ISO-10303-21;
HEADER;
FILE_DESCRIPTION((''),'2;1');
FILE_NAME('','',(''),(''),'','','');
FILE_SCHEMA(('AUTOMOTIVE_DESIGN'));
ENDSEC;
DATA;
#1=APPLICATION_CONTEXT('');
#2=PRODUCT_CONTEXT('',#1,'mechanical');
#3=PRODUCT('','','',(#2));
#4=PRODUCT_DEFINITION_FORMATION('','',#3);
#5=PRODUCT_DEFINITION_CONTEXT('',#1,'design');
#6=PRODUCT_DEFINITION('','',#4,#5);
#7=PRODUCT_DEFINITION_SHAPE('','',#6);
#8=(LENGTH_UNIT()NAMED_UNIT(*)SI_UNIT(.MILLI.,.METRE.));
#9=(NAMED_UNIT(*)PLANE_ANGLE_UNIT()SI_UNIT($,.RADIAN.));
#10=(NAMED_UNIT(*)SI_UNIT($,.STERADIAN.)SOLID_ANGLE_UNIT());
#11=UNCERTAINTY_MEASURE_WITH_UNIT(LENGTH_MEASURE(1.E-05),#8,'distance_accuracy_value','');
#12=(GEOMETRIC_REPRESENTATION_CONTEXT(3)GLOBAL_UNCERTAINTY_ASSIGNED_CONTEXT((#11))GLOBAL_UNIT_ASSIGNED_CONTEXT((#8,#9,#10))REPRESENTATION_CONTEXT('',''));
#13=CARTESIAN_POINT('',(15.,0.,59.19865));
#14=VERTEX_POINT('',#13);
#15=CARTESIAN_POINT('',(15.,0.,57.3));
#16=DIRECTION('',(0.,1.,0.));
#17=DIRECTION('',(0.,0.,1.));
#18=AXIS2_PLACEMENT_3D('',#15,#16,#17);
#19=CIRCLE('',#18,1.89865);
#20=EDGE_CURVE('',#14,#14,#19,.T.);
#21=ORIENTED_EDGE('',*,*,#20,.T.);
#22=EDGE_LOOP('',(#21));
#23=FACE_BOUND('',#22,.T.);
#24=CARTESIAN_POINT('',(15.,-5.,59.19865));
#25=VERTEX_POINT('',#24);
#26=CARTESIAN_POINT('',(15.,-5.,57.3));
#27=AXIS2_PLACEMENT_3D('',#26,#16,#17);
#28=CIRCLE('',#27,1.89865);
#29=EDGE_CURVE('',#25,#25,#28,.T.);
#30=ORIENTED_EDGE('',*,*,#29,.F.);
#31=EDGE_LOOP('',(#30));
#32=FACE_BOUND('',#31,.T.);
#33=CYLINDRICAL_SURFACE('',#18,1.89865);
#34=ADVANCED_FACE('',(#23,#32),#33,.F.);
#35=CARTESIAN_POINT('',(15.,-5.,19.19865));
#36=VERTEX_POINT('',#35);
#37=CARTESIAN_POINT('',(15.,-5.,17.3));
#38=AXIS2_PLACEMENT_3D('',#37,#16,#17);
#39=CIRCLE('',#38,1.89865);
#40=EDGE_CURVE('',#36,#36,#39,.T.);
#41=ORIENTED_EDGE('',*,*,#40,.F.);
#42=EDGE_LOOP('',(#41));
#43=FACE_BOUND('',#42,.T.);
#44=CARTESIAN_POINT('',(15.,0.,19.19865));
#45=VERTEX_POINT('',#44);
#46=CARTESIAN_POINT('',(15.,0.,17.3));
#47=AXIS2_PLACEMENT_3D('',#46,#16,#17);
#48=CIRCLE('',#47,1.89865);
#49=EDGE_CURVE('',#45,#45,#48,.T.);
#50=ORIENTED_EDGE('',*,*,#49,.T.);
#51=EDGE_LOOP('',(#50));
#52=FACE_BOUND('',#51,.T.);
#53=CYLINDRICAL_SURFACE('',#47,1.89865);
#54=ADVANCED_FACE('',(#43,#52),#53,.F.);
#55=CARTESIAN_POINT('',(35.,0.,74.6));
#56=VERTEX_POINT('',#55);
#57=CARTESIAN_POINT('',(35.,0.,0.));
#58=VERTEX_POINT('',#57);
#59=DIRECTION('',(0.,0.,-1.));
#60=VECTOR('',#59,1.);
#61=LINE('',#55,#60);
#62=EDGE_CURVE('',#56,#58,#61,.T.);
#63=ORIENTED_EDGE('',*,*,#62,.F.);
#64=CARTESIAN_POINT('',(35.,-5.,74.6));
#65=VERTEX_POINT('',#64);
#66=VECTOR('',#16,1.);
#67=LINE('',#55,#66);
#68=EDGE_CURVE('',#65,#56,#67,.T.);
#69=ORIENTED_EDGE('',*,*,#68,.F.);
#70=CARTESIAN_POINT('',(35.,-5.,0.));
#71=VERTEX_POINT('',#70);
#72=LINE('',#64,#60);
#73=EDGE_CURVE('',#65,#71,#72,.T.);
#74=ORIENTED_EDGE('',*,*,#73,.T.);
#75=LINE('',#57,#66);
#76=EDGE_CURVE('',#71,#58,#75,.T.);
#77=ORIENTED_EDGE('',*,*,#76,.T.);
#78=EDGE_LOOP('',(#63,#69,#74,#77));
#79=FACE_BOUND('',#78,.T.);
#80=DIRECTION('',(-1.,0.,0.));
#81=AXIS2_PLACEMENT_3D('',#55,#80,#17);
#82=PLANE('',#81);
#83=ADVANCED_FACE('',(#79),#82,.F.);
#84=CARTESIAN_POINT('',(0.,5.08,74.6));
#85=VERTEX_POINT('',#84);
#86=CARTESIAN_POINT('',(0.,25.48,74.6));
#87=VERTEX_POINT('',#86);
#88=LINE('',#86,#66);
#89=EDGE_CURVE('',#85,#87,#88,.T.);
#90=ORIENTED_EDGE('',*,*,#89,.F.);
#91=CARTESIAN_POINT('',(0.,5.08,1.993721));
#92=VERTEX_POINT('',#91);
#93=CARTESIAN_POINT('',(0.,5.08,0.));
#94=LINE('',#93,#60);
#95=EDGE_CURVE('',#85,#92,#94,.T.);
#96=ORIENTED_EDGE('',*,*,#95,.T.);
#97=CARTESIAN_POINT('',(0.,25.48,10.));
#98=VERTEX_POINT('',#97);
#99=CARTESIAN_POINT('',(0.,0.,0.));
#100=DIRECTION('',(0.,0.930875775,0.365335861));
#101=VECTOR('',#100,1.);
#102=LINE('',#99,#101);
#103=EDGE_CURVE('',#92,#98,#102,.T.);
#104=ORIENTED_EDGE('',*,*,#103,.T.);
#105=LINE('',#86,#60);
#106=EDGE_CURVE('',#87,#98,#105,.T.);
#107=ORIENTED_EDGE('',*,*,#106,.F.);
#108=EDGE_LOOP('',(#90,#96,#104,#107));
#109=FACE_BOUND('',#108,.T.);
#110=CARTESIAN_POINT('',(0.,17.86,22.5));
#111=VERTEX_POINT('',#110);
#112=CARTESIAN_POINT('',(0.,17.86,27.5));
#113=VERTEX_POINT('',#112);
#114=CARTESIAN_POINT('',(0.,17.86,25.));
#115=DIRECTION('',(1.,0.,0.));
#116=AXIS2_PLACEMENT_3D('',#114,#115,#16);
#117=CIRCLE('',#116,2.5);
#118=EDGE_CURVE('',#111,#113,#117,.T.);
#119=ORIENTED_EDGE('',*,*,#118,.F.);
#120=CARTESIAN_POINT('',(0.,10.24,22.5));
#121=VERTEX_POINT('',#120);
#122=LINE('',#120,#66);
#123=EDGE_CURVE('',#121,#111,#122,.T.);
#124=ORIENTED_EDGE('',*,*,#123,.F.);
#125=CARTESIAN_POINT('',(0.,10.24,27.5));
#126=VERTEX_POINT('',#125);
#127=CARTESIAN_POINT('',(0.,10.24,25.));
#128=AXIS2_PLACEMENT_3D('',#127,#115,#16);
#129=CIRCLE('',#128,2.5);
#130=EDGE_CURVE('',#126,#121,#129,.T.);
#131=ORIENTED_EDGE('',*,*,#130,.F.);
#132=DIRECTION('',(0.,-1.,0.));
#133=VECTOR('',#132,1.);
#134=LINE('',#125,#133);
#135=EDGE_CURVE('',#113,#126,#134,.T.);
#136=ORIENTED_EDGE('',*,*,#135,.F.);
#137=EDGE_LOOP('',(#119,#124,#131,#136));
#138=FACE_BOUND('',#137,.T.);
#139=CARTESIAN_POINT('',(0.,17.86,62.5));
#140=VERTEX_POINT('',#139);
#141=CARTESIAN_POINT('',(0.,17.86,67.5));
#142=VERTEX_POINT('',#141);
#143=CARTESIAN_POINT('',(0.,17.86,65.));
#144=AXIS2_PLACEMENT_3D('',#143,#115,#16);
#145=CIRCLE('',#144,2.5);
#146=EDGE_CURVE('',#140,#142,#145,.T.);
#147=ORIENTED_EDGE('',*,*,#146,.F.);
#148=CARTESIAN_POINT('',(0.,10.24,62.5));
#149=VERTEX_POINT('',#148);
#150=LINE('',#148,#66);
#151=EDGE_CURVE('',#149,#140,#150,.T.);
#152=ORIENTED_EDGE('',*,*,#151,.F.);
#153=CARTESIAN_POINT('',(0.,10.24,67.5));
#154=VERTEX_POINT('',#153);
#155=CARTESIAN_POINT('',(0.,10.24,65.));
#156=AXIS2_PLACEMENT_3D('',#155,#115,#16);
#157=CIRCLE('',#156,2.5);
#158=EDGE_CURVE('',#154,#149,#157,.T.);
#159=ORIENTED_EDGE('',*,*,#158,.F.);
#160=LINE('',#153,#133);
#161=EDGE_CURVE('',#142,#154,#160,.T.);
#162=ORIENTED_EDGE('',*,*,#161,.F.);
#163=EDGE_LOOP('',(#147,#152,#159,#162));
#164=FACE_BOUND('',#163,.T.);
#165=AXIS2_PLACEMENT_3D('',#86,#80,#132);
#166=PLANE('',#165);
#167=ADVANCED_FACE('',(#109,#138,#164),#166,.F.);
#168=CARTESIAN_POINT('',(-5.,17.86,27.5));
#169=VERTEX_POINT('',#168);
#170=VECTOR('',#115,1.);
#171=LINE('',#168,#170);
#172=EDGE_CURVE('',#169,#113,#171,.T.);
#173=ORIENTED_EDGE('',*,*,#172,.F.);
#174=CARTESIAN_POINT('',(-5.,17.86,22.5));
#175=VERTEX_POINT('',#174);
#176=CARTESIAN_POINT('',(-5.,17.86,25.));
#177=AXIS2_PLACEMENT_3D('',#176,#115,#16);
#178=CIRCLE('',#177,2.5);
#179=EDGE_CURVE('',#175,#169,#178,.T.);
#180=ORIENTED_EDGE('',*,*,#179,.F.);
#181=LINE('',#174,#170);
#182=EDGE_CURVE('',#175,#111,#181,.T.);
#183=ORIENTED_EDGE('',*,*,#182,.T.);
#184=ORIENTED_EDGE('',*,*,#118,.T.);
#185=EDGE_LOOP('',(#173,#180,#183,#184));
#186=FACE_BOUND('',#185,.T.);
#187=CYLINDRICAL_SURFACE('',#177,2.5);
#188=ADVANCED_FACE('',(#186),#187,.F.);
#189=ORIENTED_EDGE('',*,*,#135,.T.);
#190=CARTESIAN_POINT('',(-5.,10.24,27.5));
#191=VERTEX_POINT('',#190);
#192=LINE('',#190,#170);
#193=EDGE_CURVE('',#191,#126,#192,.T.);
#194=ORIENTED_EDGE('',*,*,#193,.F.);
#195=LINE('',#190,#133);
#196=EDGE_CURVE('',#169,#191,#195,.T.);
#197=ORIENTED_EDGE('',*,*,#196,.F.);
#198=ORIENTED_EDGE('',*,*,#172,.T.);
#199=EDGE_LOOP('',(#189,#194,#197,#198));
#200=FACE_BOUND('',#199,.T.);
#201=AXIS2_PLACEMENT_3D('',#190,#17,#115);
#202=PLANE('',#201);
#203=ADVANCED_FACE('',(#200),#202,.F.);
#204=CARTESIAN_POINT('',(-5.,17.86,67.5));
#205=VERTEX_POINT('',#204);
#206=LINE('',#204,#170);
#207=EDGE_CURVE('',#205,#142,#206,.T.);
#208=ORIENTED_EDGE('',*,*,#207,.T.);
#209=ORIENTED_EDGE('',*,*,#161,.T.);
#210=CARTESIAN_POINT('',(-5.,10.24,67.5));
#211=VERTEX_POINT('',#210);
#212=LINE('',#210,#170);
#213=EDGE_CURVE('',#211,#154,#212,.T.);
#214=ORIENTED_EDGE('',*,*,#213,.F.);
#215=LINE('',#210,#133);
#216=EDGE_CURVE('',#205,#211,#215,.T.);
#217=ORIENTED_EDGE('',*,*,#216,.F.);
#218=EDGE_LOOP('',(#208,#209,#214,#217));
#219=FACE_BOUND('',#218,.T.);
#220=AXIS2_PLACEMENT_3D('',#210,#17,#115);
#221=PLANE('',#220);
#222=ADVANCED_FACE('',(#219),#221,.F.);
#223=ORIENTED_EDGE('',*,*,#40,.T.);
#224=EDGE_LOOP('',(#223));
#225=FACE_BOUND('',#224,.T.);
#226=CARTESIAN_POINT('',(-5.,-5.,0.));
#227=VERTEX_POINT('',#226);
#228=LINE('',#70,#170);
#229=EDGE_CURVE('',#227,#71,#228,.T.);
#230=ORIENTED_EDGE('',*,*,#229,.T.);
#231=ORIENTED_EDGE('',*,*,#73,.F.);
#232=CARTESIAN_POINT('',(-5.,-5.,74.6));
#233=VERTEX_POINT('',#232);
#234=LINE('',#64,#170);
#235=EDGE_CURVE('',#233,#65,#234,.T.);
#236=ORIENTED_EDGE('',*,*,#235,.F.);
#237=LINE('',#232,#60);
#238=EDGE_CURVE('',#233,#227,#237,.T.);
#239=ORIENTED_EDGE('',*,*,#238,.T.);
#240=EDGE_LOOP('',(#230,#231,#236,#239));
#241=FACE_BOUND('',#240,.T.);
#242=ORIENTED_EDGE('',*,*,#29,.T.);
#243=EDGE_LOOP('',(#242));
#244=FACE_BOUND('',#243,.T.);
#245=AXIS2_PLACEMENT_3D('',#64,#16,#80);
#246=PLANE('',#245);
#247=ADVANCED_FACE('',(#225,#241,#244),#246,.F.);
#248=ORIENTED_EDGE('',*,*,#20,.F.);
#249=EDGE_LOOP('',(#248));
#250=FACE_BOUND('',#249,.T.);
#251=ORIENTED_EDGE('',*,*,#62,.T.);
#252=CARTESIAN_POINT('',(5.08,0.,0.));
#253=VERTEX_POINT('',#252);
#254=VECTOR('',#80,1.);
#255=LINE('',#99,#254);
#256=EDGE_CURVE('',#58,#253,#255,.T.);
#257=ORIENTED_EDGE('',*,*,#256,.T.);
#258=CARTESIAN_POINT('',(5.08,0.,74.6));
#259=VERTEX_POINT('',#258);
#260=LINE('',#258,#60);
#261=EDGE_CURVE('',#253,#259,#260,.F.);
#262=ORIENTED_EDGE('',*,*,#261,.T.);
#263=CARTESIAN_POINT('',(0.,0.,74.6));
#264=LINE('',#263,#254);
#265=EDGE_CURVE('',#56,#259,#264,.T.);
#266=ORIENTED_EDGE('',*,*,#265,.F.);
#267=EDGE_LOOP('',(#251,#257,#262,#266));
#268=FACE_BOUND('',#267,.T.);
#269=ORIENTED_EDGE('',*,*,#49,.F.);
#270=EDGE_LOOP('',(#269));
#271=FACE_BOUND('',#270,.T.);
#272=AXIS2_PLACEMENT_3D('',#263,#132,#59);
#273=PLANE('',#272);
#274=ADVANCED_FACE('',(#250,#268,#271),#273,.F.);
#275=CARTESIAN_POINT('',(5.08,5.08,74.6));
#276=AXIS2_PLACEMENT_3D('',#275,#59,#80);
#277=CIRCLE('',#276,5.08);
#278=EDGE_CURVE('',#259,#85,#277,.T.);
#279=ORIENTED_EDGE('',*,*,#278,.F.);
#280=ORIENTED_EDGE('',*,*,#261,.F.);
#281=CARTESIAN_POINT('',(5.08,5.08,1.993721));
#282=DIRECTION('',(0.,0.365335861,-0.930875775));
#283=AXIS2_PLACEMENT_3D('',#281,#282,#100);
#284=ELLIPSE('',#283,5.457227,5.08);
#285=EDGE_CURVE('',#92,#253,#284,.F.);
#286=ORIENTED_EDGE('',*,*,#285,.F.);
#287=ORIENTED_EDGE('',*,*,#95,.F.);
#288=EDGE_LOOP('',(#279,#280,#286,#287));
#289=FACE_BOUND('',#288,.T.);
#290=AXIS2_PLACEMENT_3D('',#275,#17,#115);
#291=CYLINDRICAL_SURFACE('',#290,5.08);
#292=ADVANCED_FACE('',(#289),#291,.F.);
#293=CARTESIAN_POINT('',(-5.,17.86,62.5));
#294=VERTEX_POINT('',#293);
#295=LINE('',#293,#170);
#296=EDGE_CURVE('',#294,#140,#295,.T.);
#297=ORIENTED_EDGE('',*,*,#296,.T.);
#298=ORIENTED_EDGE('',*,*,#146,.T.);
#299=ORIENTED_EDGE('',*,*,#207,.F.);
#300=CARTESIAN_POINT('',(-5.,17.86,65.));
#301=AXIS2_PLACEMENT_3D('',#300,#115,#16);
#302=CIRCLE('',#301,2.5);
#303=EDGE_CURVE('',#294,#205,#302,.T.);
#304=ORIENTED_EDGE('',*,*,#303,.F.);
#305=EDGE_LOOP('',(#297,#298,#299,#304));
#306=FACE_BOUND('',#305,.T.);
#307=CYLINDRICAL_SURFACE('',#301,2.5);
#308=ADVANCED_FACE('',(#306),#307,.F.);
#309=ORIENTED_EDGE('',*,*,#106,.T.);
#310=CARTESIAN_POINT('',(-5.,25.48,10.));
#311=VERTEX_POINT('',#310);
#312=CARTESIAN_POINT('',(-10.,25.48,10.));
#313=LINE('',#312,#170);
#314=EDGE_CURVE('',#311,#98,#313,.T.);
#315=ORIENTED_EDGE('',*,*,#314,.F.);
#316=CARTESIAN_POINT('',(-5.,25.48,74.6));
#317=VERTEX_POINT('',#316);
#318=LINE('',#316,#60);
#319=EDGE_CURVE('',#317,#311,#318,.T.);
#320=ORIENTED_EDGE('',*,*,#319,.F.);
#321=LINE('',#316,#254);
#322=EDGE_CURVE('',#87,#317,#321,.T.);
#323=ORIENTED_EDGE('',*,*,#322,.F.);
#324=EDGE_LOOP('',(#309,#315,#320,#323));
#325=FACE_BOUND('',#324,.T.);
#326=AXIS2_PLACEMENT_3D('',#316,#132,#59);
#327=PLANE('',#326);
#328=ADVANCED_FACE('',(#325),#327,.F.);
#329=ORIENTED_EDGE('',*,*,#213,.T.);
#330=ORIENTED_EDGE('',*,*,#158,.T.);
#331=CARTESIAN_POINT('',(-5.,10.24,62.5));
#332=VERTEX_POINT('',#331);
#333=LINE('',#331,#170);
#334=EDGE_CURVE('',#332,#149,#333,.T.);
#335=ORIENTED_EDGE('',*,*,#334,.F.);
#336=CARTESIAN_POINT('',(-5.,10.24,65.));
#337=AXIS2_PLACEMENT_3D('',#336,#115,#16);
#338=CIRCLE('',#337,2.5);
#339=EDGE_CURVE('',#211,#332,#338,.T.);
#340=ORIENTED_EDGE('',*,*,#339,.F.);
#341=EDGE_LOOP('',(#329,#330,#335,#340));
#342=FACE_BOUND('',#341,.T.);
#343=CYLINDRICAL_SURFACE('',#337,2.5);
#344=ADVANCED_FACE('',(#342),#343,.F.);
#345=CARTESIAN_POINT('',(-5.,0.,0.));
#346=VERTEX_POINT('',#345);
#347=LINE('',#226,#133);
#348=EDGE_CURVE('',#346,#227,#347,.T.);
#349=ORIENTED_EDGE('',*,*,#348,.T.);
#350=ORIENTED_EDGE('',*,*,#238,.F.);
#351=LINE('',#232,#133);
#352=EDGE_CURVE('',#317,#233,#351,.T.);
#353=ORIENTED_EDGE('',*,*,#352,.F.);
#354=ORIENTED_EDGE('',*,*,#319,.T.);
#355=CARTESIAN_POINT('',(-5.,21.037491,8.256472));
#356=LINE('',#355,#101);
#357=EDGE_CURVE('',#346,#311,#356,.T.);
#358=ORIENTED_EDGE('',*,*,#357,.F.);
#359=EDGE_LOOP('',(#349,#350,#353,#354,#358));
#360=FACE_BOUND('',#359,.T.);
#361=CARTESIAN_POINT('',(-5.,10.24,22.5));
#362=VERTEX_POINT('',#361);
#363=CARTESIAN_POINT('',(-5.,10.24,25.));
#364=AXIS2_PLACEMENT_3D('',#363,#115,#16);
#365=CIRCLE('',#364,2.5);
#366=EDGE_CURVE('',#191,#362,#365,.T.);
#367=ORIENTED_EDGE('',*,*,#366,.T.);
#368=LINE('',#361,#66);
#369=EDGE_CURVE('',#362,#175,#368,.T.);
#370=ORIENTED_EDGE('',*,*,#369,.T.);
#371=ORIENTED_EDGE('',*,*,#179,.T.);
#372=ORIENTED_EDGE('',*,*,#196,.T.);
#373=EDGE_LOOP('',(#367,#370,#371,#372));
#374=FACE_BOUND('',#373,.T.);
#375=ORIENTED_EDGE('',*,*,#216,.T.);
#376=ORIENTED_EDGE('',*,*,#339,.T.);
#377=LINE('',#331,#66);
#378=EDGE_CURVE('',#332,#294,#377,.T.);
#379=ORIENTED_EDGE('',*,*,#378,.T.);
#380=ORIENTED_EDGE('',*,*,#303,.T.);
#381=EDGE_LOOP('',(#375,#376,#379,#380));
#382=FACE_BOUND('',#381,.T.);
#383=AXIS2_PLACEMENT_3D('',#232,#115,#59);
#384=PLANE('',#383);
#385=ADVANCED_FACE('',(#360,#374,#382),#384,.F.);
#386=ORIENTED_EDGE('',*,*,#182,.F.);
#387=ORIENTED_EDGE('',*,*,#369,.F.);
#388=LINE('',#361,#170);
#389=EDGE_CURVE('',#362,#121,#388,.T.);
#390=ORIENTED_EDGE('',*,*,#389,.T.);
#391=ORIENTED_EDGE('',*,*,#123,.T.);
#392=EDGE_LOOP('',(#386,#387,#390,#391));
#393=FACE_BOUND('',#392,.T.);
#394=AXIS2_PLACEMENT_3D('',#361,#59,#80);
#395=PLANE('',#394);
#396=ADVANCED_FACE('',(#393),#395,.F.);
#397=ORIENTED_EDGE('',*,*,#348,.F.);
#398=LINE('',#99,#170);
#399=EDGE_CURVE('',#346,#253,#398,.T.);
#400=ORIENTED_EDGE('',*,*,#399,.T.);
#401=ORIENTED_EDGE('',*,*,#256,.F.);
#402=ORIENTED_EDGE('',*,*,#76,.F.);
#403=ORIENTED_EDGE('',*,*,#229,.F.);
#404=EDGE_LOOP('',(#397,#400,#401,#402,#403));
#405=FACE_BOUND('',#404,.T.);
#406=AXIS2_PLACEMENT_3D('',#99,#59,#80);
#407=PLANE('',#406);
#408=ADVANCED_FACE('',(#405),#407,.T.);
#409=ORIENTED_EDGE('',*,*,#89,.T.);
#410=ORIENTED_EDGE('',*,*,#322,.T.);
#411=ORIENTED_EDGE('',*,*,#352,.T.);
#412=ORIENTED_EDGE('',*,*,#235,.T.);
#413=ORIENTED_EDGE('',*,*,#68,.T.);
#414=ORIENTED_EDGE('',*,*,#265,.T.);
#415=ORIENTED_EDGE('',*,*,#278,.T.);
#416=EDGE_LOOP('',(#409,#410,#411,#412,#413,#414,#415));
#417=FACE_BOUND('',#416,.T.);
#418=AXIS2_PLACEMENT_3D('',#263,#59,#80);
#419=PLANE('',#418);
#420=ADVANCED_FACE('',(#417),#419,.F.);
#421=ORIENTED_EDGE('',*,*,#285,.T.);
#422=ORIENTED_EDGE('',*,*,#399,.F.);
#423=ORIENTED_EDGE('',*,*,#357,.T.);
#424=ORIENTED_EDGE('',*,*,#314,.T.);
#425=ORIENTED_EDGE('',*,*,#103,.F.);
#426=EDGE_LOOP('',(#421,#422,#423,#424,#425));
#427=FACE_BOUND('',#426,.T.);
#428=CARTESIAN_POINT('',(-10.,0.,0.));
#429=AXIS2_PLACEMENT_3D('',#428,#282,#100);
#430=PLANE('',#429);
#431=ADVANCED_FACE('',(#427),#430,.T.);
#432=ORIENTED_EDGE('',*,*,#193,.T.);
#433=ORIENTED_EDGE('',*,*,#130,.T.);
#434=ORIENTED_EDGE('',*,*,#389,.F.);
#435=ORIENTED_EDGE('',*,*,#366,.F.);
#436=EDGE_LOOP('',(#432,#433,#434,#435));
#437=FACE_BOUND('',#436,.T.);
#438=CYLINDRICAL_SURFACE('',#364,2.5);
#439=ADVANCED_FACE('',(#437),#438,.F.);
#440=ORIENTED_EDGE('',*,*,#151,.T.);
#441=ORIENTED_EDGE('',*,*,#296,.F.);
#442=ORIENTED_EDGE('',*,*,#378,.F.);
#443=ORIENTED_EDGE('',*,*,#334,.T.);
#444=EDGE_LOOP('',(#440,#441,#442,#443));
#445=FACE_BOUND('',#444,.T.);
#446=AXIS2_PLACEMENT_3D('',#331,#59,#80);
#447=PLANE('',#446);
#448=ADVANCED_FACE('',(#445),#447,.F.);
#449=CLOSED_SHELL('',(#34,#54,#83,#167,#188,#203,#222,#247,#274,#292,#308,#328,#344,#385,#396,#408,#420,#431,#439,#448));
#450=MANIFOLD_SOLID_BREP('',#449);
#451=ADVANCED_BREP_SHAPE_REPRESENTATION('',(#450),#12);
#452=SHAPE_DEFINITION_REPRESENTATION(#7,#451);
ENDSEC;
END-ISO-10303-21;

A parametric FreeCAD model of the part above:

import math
import FreeCAD as App
import Part
import Sketcher

V = App.Vector


def edges_at(feature, points):
    """Names of the edges that pass closest to the given points."""
    edges = feature.Shape.Edges
    near = lambda p: min(range(len(edges)), key=lambda i: edges[i].distToShape(Part.Vertex(*p))[0])
    return sorted({f"Edge{near(p) + 1}" for p in points})


def add_polygon(sketch, points):
    """Adds a closed chain of lines whose ends are joined by coincident constraints."""
    first, n = sketch.GeometryCount, len(points)
    for a, b in zip(points, points[1:] + points[:1]):
        sketch.addGeometry(Part.LineSegment(App.Vector(*a, 0), App.Vector(*b, 0)), False)
    for i in range(n):
        sketch.addConstraint(Sketcher.Constraint("Coincident", first + i, 2, first + (i + 1) % n, 1))

doc = App.newDocument("Part")
body = doc.addObject("PartDesign::Body", "Body")

sketch1 = body.newObject("Sketcher::SketchObject", "Sketch")
sketch1.AttachmentSupport = (doc.getObject("XY_Plane"), [""])
sketch1.MapMode = "FlatFace"
add_polygon(sketch1, [(0, 0), (0, 25), (-5, 25), (-5, -5), (35, -5), (35, 0)])
sketch1.addConstraint([
    Sketcher.Constraint("Vertical", 0),
    Sketcher.Constraint("Horizontal", 1),
    Sketcher.Constraint("Vertical", 2),
    Sketcher.Constraint("Horizontal", 3),
    Sketcher.Constraint("Vertical", 4),
    Sketcher.Constraint("Horizontal", 5),
    Sketcher.Constraint("Coincident", 5, 2, -1, 1),
    Sketcher.Constraint("Equal", 1, 4),
    Sketcher.Constraint("DistanceX", 1, 2, 1, 1, 5.0),
    Sketcher.Constraint("DistanceX", 3, 1, 3, 2, 40.0),
    Sketcher.Constraint("DistanceY", 0, 1, 0, 2, 25.48),
])
pad1 = body.newObject("PartDesign::Pad", "Pad")
pad1.Profile = sketch1
pad1.Length = 74.6

sketch2 = body.newObject("Sketcher::SketchObject", "Sketch001")
sketch2.AttachmentSupport = (doc.getObject("YZ_Plane"), [""])
sketch2.MapMode = "FlatFace"
sketch2.addGeometry([
    Part.LineSegment(V(17.9, 67.5, 0), V(10.2, 67.5, 0)),
    Part.ArcOfCircle(Part.Circle(V(10.2, 65, 0), V(0, 0, 1), 2.5), math.radians(90), math.radians(270)),
    Part.LineSegment(V(10.2, 62.5, 0), V(17.9, 62.5, 0)),
    Part.ArcOfCircle(Part.Circle(V(17.9, 65, 0), V(0, 0, 1), 2.5), math.radians(-90), math.radians(90)),
    Part.LineSegment(V(17.9, 27.5, 0), V(10.2, 27.5, 0)),
    Part.ArcOfCircle(Part.Circle(V(10.2, 25, 0), V(0, 0, 1), 2.5), math.radians(90), math.radians(270)),
    Part.LineSegment(V(10.2, 22.5, 0), V(17.9, 22.5, 0)),
    Part.ArcOfCircle(Part.Circle(V(17.9, 25, 0), V(0, 0, 1), 2.5), math.radians(-90), math.radians(90)),
], False)
sketch2.addConstraint([
    Sketcher.Constraint("Tangent", 0, 2, 1, 1),
    Sketcher.Constraint("Tangent", 1, 2, 2, 1),
    Sketcher.Constraint("Tangent", 2, 2, 3, 1),
    Sketcher.Constraint("Tangent", 3, 2, 0, 1),
    Sketcher.Constraint("Tangent", 4, 2, 5, 1),
    Sketcher.Constraint("Tangent", 5, 2, 6, 1),
    Sketcher.Constraint("Tangent", 6, 2, 7, 1),
    Sketcher.Constraint("Tangent", 7, 2, 4, 1),
    Sketcher.Constraint("Horizontal", 0),
    Sketcher.Constraint("Horizontal", 2),
    Sketcher.Constraint("Horizontal", 4),
    Sketcher.Constraint("Horizontal", 6),
    Sketcher.Constraint("Equal", 3, 5),
    Sketcher.Constraint("Vertical", 1, 3, 5, 3),
    Sketcher.Constraint("Vertical", 3, 3, 7, 3),
    Sketcher.Constraint("Radius", 1, 2.5),
    Sketcher.Constraint("DistanceY", -1, 1, 1, 3, 65.0),
    Sketcher.Constraint("DistanceY", -1, 1, 5, 3, 25.0),
    Sketcher.Constraint("DistanceX", 0, 2, 0, 1, 7.62),
    Sketcher.Constraint("DistanceX", -1, 1, 1, 3, 10.24),
])
pocket1 = body.newObject("PartDesign::Pocket", "Pocket")
pocket1.Profile = sketch2
pocket1.Type = "ThroughAll"

sketch3 = body.newObject("Sketcher::SketchObject", "Sketch002")
sketch3.AttachmentSupport = (doc.getObject("YZ_Plane"), [""])
sketch3.MapMode = "FlatFace"
add_polygon(sketch3, [(25, 10), (0, 0), (25, 0)])
sketch3.addConstraint([
    Sketcher.Constraint("Horizontal", 1),
    Sketcher.Constraint("Vertical", 2),
    Sketcher.Constraint("Coincident", 0, 2, -1, 1),
    Sketcher.Constraint("DistanceY", 2, 1, 2, 2, 10.0),
    Sketcher.Constraint("DistanceX", 1, 1, 1, 2, 25.48),
])
pocket2 = body.newObject("PartDesign::Pocket", "Pocket001")
pocket2.Profile = sketch3
pocket2.Length = 10
doc.recompute()

fillet = body.newObject("PartDesign::Fillet", "Fillet")
fillet.Base = (pocket2, edges_at(pocket2, [(0, 0, 37.3)]))
fillet.Radius = 5.08

sketch4 = body.newObject("Sketcher::SketchObject", "Sketch003")
sketch4.AttachmentSupport = (doc.getObject("XZ_Plane"), [""])
sketch4.MapMode = "FlatFace"
sketch4.addGeometry([
    Part.Circle(V(15, 17.3, 0), V(0, 0, 1), 1.9),
    Part.Circle(V(15, 57.3, 0), V(0, 0, 1), 1.9),
], False)
sketch4.addConstraint([
    Sketcher.Constraint("Equal", 0, 1),
    Sketcher.Constraint("Vertical", 0, 3, 1, 3),
    Sketcher.Constraint("DistanceX", -1, 1, 0, 3, 15.0),
    Sketcher.Constraint("DistanceY", 0, 3, 1, 3, 40.0),
    Sketcher.Constraint("Diameter", 0, 3.7973),
    Sketcher.Constraint("DistanceY", -1, 1, 0, 3, 17.3),
])
doc.recompute()
hole = body.newObject("PartDesign::Hole", "Hole")
hole.Profile = sketch4
hole.ThreadType = "None"
hole.Diameter = 3.7973
hole.DepthType = "ThroughAll"
hole.Reversed = True

doc.recompute()
